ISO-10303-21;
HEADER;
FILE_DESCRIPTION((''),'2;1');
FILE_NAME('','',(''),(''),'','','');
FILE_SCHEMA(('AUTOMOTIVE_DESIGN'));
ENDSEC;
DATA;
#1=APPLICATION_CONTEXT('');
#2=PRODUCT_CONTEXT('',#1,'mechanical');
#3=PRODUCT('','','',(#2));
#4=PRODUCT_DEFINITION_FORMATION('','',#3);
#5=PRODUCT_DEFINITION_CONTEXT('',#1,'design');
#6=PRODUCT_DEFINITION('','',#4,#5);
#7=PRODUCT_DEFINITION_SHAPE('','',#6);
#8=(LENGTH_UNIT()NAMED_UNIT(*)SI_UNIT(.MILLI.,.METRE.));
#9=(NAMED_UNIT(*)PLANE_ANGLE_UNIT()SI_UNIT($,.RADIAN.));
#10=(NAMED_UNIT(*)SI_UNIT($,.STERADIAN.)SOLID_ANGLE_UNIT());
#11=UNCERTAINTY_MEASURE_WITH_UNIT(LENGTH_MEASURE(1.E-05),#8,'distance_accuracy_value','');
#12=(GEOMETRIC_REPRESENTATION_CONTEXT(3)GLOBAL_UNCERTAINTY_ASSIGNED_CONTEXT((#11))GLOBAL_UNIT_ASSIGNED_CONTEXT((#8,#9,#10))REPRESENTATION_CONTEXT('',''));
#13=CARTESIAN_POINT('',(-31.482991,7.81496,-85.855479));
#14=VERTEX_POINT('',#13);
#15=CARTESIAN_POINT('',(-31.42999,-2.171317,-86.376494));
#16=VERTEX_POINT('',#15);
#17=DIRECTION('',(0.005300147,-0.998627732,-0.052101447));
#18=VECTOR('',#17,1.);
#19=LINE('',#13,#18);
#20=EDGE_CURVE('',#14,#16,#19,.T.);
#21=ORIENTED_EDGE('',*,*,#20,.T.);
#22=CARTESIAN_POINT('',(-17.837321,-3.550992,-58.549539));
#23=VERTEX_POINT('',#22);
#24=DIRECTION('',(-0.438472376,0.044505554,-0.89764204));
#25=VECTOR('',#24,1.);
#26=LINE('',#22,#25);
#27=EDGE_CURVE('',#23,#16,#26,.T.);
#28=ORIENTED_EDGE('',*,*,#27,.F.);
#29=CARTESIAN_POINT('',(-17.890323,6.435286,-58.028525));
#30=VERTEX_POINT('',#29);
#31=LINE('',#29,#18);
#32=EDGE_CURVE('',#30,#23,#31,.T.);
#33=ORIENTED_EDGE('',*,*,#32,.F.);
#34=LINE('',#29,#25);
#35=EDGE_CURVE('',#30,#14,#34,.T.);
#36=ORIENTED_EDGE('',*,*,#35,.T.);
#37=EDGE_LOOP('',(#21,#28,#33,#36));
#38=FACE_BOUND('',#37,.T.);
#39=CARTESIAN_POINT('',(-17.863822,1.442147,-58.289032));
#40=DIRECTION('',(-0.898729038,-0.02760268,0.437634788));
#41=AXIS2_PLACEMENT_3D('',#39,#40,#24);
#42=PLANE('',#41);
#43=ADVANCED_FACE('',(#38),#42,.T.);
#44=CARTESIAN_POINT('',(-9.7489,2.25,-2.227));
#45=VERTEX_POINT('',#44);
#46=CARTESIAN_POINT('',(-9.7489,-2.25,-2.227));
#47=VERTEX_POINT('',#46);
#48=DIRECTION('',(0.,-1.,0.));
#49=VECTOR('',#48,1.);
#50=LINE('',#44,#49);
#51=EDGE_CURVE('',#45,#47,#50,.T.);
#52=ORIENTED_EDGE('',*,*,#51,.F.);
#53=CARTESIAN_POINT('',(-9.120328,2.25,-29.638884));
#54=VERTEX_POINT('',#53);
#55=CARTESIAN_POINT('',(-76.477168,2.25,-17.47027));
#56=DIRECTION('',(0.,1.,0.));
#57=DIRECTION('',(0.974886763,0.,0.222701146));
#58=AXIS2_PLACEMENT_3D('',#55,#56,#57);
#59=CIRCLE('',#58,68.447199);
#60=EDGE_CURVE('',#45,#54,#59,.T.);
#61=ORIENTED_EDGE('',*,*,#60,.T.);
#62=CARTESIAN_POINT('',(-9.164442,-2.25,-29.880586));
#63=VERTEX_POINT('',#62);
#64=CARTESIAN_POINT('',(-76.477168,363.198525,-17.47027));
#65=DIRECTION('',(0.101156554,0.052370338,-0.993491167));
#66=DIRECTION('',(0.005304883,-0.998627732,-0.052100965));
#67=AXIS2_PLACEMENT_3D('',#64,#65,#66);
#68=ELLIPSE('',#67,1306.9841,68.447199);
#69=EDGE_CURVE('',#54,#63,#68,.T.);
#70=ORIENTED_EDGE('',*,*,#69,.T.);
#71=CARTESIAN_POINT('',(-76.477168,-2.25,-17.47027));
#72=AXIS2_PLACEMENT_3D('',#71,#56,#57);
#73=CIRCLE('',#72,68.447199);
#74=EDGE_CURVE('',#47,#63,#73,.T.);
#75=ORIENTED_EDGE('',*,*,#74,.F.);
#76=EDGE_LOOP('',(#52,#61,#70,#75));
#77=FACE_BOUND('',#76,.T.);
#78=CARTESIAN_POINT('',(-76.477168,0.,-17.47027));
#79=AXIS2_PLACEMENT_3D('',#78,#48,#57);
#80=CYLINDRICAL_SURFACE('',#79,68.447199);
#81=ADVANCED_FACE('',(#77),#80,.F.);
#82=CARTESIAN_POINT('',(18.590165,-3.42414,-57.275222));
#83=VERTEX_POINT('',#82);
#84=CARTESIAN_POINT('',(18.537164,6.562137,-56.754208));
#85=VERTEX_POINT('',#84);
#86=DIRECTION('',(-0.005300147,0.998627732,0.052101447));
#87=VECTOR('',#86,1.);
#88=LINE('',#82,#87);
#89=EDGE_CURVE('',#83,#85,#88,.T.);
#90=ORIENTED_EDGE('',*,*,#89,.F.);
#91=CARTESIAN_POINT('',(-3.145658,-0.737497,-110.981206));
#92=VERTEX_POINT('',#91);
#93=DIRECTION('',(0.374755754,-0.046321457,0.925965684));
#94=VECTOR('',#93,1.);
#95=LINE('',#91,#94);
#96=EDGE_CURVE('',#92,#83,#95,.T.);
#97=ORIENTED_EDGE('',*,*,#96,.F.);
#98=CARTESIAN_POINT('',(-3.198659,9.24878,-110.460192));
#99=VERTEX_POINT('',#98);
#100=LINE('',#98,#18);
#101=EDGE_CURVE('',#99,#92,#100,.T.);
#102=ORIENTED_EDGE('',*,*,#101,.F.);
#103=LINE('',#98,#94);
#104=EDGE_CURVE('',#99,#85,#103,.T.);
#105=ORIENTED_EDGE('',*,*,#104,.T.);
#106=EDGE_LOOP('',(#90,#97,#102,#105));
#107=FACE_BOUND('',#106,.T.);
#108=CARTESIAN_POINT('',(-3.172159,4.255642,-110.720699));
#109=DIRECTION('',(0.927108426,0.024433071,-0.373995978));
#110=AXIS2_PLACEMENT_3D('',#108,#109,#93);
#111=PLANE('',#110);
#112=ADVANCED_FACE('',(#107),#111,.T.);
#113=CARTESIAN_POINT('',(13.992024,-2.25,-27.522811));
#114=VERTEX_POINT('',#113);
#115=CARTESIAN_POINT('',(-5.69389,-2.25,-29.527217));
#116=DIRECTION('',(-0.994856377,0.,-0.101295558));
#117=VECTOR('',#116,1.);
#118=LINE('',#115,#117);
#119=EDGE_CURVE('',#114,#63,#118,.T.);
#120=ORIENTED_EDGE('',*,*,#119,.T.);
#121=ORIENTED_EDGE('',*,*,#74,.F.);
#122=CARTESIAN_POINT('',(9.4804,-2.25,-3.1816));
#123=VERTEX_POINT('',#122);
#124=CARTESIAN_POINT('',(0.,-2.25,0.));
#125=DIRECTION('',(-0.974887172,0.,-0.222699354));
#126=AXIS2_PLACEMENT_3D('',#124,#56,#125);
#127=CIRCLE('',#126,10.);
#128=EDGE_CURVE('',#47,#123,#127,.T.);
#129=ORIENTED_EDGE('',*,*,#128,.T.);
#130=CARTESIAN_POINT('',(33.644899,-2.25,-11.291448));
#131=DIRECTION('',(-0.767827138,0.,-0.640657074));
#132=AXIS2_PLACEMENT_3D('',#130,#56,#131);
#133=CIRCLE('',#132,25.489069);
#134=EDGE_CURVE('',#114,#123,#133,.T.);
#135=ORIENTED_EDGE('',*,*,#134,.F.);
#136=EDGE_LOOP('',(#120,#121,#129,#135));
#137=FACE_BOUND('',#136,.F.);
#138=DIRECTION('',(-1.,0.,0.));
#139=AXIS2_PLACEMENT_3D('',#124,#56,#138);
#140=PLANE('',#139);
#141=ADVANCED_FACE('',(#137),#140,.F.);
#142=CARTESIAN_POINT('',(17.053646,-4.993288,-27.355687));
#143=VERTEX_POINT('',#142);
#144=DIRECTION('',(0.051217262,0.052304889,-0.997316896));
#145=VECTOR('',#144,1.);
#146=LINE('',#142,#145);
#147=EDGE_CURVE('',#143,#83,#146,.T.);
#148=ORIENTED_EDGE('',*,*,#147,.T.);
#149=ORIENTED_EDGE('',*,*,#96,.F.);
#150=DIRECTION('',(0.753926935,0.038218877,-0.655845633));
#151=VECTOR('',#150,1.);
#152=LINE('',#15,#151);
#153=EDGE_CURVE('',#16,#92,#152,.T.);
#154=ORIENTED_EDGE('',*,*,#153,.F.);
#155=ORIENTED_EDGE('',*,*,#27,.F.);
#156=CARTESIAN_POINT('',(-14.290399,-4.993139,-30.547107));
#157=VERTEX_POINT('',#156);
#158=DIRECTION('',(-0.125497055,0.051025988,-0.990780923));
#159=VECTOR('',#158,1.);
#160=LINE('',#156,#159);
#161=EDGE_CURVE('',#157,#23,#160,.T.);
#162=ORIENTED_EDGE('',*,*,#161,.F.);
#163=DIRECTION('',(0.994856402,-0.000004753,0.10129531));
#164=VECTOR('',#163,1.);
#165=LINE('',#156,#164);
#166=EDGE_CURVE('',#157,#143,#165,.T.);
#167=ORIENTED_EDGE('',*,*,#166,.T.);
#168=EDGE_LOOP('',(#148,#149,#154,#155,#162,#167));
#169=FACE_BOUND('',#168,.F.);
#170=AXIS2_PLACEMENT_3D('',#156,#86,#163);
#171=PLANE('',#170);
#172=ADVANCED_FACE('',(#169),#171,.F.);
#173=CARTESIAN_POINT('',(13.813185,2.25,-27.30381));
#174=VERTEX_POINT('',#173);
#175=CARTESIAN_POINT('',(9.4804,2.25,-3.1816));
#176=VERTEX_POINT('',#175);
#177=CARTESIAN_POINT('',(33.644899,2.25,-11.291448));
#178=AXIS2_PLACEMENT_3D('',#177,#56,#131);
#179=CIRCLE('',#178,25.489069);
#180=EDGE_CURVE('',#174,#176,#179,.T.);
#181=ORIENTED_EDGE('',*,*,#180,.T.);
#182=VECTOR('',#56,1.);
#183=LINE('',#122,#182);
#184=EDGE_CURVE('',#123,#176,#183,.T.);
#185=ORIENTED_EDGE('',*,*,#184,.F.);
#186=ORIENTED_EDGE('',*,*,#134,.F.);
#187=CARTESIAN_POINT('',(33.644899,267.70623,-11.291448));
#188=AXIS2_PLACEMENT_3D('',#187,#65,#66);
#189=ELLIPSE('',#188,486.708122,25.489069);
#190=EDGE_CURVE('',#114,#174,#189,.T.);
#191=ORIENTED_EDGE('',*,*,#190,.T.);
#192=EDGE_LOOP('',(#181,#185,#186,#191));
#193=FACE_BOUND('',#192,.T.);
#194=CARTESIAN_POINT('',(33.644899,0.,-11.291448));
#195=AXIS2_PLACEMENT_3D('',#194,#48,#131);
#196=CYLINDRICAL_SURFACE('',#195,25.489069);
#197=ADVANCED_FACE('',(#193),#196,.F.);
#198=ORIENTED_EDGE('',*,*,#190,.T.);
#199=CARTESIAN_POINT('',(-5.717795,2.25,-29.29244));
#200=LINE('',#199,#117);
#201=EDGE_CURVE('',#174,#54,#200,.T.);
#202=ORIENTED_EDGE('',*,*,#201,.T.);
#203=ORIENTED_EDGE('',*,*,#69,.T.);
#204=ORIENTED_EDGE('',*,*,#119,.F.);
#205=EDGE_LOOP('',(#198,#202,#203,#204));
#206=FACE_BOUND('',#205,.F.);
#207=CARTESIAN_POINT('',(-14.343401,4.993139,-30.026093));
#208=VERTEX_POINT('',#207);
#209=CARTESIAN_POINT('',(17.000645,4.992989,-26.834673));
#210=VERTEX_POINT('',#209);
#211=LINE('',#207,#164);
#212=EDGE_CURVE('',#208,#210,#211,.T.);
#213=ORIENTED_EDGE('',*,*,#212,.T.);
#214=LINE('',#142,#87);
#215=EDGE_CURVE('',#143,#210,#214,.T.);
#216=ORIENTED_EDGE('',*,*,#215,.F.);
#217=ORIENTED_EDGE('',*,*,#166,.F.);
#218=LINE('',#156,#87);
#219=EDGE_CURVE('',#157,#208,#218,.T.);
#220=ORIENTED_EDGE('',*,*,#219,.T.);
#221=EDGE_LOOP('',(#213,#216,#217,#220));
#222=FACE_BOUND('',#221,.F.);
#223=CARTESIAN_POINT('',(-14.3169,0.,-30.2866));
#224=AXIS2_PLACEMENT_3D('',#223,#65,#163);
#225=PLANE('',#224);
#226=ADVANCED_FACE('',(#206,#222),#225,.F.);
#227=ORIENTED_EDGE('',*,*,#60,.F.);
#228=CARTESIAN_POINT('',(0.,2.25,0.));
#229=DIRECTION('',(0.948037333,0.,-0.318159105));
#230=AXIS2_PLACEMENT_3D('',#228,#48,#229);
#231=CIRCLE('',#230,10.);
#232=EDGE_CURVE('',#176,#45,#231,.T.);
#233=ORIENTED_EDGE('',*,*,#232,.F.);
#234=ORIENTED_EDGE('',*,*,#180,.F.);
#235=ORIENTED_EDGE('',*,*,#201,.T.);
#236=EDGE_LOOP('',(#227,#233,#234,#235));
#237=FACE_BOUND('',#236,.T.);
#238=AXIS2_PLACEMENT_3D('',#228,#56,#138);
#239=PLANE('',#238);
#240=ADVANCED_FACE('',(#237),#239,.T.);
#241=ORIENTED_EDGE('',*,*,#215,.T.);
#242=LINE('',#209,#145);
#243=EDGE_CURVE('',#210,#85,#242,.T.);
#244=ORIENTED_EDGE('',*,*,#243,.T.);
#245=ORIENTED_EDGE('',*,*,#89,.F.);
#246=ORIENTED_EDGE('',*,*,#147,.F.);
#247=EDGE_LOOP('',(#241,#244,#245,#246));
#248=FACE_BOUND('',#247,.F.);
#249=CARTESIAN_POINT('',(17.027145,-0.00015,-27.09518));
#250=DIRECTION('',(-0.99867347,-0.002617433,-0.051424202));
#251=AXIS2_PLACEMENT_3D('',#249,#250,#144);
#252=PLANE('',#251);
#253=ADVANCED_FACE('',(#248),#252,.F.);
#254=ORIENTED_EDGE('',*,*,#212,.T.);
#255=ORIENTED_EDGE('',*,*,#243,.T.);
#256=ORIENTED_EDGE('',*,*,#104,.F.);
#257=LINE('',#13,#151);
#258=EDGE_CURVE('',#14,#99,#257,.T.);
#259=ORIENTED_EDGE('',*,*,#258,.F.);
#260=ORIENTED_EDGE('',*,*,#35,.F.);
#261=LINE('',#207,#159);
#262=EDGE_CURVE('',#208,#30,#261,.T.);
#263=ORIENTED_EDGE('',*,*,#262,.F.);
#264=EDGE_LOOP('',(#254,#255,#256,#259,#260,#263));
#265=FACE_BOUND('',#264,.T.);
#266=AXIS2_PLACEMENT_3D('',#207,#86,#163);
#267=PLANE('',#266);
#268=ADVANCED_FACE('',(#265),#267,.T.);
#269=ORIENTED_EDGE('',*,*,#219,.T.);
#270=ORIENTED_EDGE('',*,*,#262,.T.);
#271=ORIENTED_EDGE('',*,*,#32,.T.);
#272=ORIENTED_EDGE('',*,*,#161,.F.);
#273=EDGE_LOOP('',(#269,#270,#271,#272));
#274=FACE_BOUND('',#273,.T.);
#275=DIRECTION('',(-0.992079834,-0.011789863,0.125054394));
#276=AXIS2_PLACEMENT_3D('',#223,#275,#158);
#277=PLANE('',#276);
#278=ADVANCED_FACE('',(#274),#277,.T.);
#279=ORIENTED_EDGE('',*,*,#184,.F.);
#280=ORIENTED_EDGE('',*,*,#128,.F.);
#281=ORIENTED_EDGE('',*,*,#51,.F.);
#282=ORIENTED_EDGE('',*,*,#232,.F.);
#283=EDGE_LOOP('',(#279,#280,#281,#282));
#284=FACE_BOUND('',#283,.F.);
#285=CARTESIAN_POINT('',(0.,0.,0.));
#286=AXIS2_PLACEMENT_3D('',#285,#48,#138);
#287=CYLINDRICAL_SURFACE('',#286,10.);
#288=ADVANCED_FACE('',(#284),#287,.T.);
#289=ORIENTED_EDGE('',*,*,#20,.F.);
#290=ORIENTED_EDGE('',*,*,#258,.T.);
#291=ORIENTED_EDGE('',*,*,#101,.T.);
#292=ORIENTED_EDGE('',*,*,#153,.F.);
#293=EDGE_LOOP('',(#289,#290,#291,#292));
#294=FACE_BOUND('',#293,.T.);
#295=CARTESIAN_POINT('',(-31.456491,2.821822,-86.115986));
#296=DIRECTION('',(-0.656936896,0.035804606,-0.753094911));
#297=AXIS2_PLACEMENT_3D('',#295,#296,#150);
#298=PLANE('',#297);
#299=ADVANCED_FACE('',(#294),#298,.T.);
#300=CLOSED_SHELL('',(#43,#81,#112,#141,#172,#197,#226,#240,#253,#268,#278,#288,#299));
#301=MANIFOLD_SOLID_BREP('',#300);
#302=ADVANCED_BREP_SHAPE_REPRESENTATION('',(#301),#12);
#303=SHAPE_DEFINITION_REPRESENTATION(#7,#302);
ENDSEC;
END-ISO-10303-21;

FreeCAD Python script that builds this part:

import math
import FreeCAD as App
import Part
import Sketcher
Q = App.Units.Quantity


def add_polygon(sketch, points):
    """Adds a closed chain of lines whose ends are joined by coincident constraints."""
    first, n = sketch.GeometryCount, len(points)
    for a, b in zip(points, points[1:] + points[:1]):
        sketch.addGeometry(Part.LineSegment(App.Vector(*a, 0), App.Vector(*b, 0)), False)
    for i in range(n):
        sketch.addConstraint(Sketcher.Constraint("Coincident", first + i, 2, first + (i + 1) % n, 1))

doc = App.newDocument("Part")
params = doc.addObject("Spreadsheet::Sheet", "Params")
for row, (alias, value) in enumerate([
    ("sketch1_radius", "10 mm"),
    ("pad1_length", "4.5 mm"),
    ("sketch2_length", "30 mm"),
    ("sketch2_length2", "58 mm"),
    ("sketch2_length3", "31 mm"),
    ("pad2_length", "10 mm"),
], start=1):
    params.set(f"A{row}", alias)
    params.set(f"B{row}", "=" + value)
    params.setAlias(f"B{row}", alias)

body = doc.addObject("PartDesign::Body", "Body")

# Sketch on XZ plane
sketch1 = doc.addObject("Sketcher::SketchObject", "Sketch")
body.addObject(sketch1)
sketch1.AttachmentSupport = (doc.XZ_Plane, [""])
sketch1.MapMode = "FlatFace"
sketch1.addGeometry(Part.ArcOfCircle(Part.Circle(App.Vector(0, 0, 0), App.Vector(0, 0, 1), 10), math.radians(-19), math.radians(193)), False)
sketch1.addGeometry(Part.ArcOfCircle(Part.Circle(App.Vector(34, -11, 0), App.Vector(0, 0, 1), 25), math.radians(161), math.radians(220)), False)
sketch1.addGeometry(Part.ArcOfCircle(Part.Circle(App.Vector(-18, 160, 0), App.Vector(0, 0, 1), 190), math.radians(-87.4), math.radians(-80.33)), False)
sketch1.addGeometry(Part.ArcOfCircle(Part.Circle(App.Vector(-76, -17, 0), App.Vector(0, 0, 1), 68), math.radians(-11), math.radians(13)), False)
sketch1.addConstraint(Sketcher.Constraint("Tangent", 0, 1, 1, 1))
sketch1.addConstraint(Sketcher.Constraint("Coincident", 1, 2, 2, 2))
sketch1.addConstraint(Sketcher.Constraint("Coincident", 2, 1, 3, 1))
sketch1.addConstraint(Sketcher.Constraint("Tangent", 3, 2, 0, 2))
sketch1.addConstraint(Sketcher.Constraint("Coincident", 0, 3, -1, 1))
sketch1.addConstraint(Sketcher.Constraint("Radius", 0, 10.0))
sketch1.addConstraint(Sketcher.Constraint("Radius", 1, 25.4892))
sketch1.addConstraint(Sketcher.Constraint("Radius", 3, 68.4466))
sketch1.addConstraint(Sketcher.Constraint("Radius", 2, 189.8606))
sketch1.addConstraint(Sketcher.Constraint("DistanceX", 2, 1, 0, 1, 18.69))
sketch1.addConstraint(Sketcher.Constraint("DistanceX", -1, 1, 1, 3, 33.645))
sketch1.addConstraint(Sketcher.Constraint("DistanceX", 2, 3, -1, 1, 17.818))
sketch1.addConstraint(Sketcher.Constraint("DistanceY", 3, 3, 2, 3, 177.012))
sketch1.setExpression("Constraints[5]", "Params.sketch1_radius")
pad1 = doc.addObject("PartDesign::Pad", "Pad")
body.addObject(pad1)
pad1.Profile = sketch1
pad1.setExpression("Length", "Params.pad1_length")
pad1.Midplane = True

# Sketch on an angled plane
sketch2 = doc.addObject("Sketcher::SketchObject", "Sketch001")
body.addObject(sketch2)
sketch2.Placement = App.Placement(App.Vector(-14.3169, 0, -30.2866), App.Rotation(App.Vector(0.994856402, -0.000004753, 0.10129531), App.Vector(0.101156553, 0.052370338, -0.993491167), App.Vector(-0.005300147, 0.998627732, 0.052101447), "ZXY"))
add_polygon(sketch2, [(-6, 28), (0, 0), (32, 0), (30, 30), (3, 81), (-23, 54)])  # lines 0-5
sketch2.addConstraint(Sketcher.Constraint("Horizontal", 1))
sketch2.addConstraint(Sketcher.Constraint("Coincident", 0, 2, -1, 1))
sketch2.addConstraint(Sketcher.Constraint("Distance", 2, 30.0))
sketch2.addConstraint(Sketcher.Constraint("Distance", 3, 58.0))
sketch2.addConstraint(Sketcher.Constraint("Distance", 5, 31.0))
sketch2.addConstraint(Sketcher.Constraint("Distance", 0, 28.263))
sketch2.addConstraint(Sketcher.Constraint("Distance", 4, 37.516))
sketch2.addConstraint(Sketcher.Constraint("Angle", 2, Q("92.87 deg")))
sketch2.addConstraint(Sketcher.Constraint("DistanceX", 1, 1, 1, 2, 31.506))
sketch2.addConstraint(Sketcher.Constraint("DistanceY", -1, 1, 4, 2, 53.88))
sketch2.addConstraint(Sketcher.Constraint("DistanceY", -1, 1, 5, 2, 27.537))
sketch2.setExpression("Constraints[8]", "Params.sketch2_length")
sketch2.setExpression("Constraints[9]", "Params.sketch2_length2")
sketch2.setExpression("Constraints[10]", "Params.sketch2_length3")
pad2 = doc.addObject("PartDesign::Pad", "Pad001")
body.addObject(pad2)
pad2.Profile = sketch2
pad2.setExpression("Length", "Params.pad2_length")
pad2.Midplane = True

doc.recompute()
